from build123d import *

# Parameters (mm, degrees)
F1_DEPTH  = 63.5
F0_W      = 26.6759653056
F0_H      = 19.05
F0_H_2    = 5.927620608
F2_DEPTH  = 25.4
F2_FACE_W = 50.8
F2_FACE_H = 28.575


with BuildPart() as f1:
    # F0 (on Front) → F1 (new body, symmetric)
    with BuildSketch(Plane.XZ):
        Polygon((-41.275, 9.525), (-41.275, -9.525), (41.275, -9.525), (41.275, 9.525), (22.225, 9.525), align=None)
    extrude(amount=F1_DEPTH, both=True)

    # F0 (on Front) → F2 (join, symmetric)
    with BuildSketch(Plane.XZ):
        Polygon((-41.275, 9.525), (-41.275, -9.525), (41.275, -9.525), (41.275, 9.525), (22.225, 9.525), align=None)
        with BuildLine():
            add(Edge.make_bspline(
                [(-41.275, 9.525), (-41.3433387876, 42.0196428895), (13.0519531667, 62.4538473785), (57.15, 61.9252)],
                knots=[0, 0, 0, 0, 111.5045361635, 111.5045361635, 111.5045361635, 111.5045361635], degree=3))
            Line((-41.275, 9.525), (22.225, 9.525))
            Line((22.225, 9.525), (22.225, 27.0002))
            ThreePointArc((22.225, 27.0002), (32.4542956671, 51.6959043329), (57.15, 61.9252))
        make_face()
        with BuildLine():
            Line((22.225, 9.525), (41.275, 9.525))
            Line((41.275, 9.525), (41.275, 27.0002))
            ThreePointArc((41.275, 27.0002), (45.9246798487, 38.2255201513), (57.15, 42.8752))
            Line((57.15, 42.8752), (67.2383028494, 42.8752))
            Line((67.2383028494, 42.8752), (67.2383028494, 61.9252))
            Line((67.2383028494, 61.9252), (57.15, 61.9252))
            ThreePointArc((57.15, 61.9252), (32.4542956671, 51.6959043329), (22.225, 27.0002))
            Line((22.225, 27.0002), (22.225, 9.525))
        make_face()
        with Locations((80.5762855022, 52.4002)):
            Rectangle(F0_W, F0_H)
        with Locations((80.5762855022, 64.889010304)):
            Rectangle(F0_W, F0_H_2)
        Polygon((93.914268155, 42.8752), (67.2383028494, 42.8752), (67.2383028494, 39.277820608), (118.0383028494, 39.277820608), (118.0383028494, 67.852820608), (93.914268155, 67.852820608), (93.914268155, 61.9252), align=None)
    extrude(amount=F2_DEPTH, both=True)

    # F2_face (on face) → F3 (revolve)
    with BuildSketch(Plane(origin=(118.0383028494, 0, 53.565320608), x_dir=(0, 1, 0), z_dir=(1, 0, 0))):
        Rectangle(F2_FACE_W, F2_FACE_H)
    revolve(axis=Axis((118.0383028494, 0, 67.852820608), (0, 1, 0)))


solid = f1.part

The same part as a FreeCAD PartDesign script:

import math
import FreeCAD as App
import Part
import Sketcher

V = App.Vector
Q = App.Units.Quantity

doc = App.newDocument("Part")
body = doc.addObject("PartDesign::Body", "Body")

# Sketch on XZ plane
sketch1 = body.newObject("Sketcher::SketchObject", "Sketch")
sketch1.AttachmentSupport = (doc.getObject("XZ_Plane"), [""])
sketch1.MapMode = "FlatFace"
sketch1.addGeometry([
    Part.LineSegment(V(-41, 10, 0), V(-41, -10, 0)),
    Part.LineSegment(V(-41, -10, 0), V(41, -10, 0)),
    Part.LineSegment(V(41, -10, 0), V(41, 10, 0)),
    Part.LineSegment(V(41, 10, 0), V(-41, 10, 0)),
], False)
sketch1.addConstraint([
    Sketcher.Constraint("Coincident", 0, 2, 1, 1),
    Sketcher.Constraint("Coincident", 1, 2, 2, 1),
    Sketcher.Constraint("Coincident", 2, 2, 3, 1),
    Sketcher.Constraint("Coincident", 3, 2, 0, 1),
    Sketcher.Constraint("Vertical", 0),
    Sketcher.Constraint("Horizontal", 1),
    Sketcher.Constraint("Vertical", 2),
    Sketcher.Constraint("Horizontal", 3),
    Sketcher.Constraint("Symmetric", 0, 2, 2, 2, -1, 1),
    Sketcher.Constraint("DistanceX", 1, 1, 1, 2, Q("3.25 in")),
    Sketcher.Constraint("DistanceY", 0, 2, 0, 1, Q("0.75 in")),
])
pad1 = body.newObject("PartDesign::Pad", "Pad")
pad1.Profile = sketch1
pad1.Length = Q("5 in")
pad1.Midplane = True

# Sketch on XZ plane
sketch2 = body.newObject("Sketcher::SketchObject", "Sketch001")
sketch2.AttachmentSupport = (doc.getObject("XZ_Plane"), [""])
sketch2.MapMode = "FlatFace"
sketch2.addGeometry([
    Part.LineSegment(V(-41.275, 9.525, 0), V(-41.275, -9.525, 0)),  # 0
    Part.LineSegment(V(-41.275, -9.525, 0), V(41.275, -9.525, 0)),  # 1
    Part.LineSegment(V(41.275, -9.525, 0), V(41.275, 27.0002, 0)),  # 2
    Part.ArcOfCircle(Part.Circle(V(57.15, 27.0002, 0), V(0, 0, 1), 15.875), math.radians(90), math.radians(180)),  # 3
    Part.LineSegment(V(57.15, 42.8752, 0), V(67.238303, 42.8752, 0)),  # 4
    Part.LineSegment(V(67.238303, 42.8752, 0), V(67.238303, 39.277821, 0)),  # 5
    Part.LineSegment(V(67.238303, 39.277821, 0), V(118.038303, 39.277821, 0)),  # 6
    Part.LineSegment(V(118.038303, 39.277821, 0), V(118.038303, 67.852821, 0)),  # 7
    Part.LineSegment(V(118.038303, 67.852821, 0), V(67.238303, 67.852821, 0)),  # 8
    Part.LineSegment(V(67.238303, 67.852821, 0), V(67.238303, 61.9252, 0)),  # 9
    Part.LineSegment(V(67.238303, 61.9252, 0), V(57.15, 61.9252, 0)),  # 10
    Part.BSplineCurve([V(-41.275, 9.525, 0), V(-41.343339, 42.019643, 0), V(13.051953, 62.453847, 0), V(57.15, 61.9252, 0)], [4, 4], [0, 111.504536164], False, 3, [1, 1, 1, 1], False),  # 11
], False)
sketch2.addConstraint([
    Sketcher.Constraint("Block", 11),
    Sketcher.Constraint("Coincident", 0, 2, 1, 1),
    Sketcher.Constraint("Coincident", 1, 2, 2, 1),
    Sketcher.Constraint("Tangent", 2, 2, 3, 2),
    Sketcher.Constraint("Tangent", 3, 1, 4, 1),
    Sketcher.Constraint("Coincident", 4, 2, 5, 1),
    Sketcher.Constraint("Coincident", 5, 2, 6, 1),
    Sketcher.Constraint("Coincident", 6, 2, 7, 1),
    Sketcher.Constraint("Coincident", 7, 2, 8, 1),
    Sketcher.Constraint("Coincident", 8, 2, 9, 1),
    Sketcher.Constraint("Coincident", 9, 2, 10, 1),
    Sketcher.Constraint("Coincident", 10, 2, 11, 2),
    Sketcher.Constraint("Coincident", 11, 1, 0, 1),
    Sketcher.Constraint("Vertical", 0),
    Sketcher.Constraint("Horizontal", 1),
    Sketcher.Constraint("Vertical", 2),
    Sketcher.Constraint("Horizontal", 4),
    Sketcher.Constraint("Vertical", 5),
    Sketcher.Constraint("Horizontal", 6),
    Sketcher.Constraint("Vertical", 7),
    Sketcher.Constraint("Horizontal", 8),
    Sketcher.Constraint("Vertical", 9),
    Sketcher.Constraint("Horizontal", 10),
    Sketcher.Constraint("Vertical", 5, 2, 8, 2),
    Sketcher.Constraint("Vertical", 3, 1, 10, 2),
    Sketcher.Constraint("DistanceX", 6, 1, 6, 2, Q("2 in")),
    Sketcher.Constraint("Radius", 3, Q("0.625 in")),
    Sketcher.Constraint("DistanceY", 0, 2, 0, 1, Q("0.75 in")),
    Sketcher.Constraint("DistanceY", 2, 1, 2, 2, Q("1.438 in")),
    Sketcher.Constraint("DistanceY", 7, 1, 7, 2, Q("1.125 in")),
    Sketcher.Constraint("DistanceY", 5, 2, 5, 1, 3.597379),
    Sketcher.Constraint("DistanceX", 4, 1, 4, 2, 10.088303),
])
pad2 = body.newObject("PartDesign::Pad", "Pad001")
pad2.Profile = sketch2
pad2.Length = Q("2 in")
pad2.Midplane = True

# Sketch on YZ plane
sketch3 = body.newObject("Sketcher::SketchObject", "Sketch002")
sketch3.AttachmentSupport = (doc.getObject("YZ_Plane"), [""])
sketch3.MapMode = "FlatFace"
sketch3.AttachmentOffset = App.Placement(V(0, 0, 118.038303), App.Rotation())
sketch3.addGeometry([
    Part.LineSegment(V(-25, 68, 0), V(-25, 39, 0)),
    Part.LineSegment(V(-25, 39, 0), V(25, 39, 0)),
    Part.LineSegment(V(25, 39, 0), V(25, 68, 0)),
    Part.LineSegment(V(25, 68, 0), V(-25, 68, 0)),
], False)
sketch3.addGeometry(Part.LineSegment(V(-25, 68, 0), V(25, 68, 0)), True)  # axis
sketch3.addConstraint([
    Sketcher.Constraint("Coincident", 0, 2, 1, 1),
    Sketcher.Constraint("Coincident", 1, 2, 2, 1),
    Sketcher.Constraint("Coincident", 2, 2, 3, 1),
    Sketcher.Constraint("Coincident", 3, 2, 0, 1),
    Sketcher.Constraint("Vertical", 0),
    Sketcher.Constraint("Horizontal", 1),
    Sketcher.Constraint("Vertical", 2),
    Sketcher.Constraint("Horizontal", 3),
    Sketcher.Constraint("Horizontal", 4),
    Sketcher.Constraint("Coincident", 4, 1, 3, 2),
    Sketcher.Constraint("Vertical", 1, 2, 4, 2),
    Sketcher.Constraint("DistanceX", 1, 1, 1, 2, Q("2 in")),
    Sketcher.Constraint("DistanceX", 0, 2, -1, 1, Q("1 in")),
    Sketcher.Constraint("DistanceY", 0, 2, 0, 1, Q("1.125 in")),
    Sketcher.Constraint("DistanceY", -1, 1, 0, 2, 39.277821),
])
revolution = body.newObject("PartDesign::Revolution", "Revolution")
revolution.Profile = sketch3
revolution.ReferenceAxis = (sketch3, ["Axis0"])
revolution.Angle = 360

doc.recompute()
